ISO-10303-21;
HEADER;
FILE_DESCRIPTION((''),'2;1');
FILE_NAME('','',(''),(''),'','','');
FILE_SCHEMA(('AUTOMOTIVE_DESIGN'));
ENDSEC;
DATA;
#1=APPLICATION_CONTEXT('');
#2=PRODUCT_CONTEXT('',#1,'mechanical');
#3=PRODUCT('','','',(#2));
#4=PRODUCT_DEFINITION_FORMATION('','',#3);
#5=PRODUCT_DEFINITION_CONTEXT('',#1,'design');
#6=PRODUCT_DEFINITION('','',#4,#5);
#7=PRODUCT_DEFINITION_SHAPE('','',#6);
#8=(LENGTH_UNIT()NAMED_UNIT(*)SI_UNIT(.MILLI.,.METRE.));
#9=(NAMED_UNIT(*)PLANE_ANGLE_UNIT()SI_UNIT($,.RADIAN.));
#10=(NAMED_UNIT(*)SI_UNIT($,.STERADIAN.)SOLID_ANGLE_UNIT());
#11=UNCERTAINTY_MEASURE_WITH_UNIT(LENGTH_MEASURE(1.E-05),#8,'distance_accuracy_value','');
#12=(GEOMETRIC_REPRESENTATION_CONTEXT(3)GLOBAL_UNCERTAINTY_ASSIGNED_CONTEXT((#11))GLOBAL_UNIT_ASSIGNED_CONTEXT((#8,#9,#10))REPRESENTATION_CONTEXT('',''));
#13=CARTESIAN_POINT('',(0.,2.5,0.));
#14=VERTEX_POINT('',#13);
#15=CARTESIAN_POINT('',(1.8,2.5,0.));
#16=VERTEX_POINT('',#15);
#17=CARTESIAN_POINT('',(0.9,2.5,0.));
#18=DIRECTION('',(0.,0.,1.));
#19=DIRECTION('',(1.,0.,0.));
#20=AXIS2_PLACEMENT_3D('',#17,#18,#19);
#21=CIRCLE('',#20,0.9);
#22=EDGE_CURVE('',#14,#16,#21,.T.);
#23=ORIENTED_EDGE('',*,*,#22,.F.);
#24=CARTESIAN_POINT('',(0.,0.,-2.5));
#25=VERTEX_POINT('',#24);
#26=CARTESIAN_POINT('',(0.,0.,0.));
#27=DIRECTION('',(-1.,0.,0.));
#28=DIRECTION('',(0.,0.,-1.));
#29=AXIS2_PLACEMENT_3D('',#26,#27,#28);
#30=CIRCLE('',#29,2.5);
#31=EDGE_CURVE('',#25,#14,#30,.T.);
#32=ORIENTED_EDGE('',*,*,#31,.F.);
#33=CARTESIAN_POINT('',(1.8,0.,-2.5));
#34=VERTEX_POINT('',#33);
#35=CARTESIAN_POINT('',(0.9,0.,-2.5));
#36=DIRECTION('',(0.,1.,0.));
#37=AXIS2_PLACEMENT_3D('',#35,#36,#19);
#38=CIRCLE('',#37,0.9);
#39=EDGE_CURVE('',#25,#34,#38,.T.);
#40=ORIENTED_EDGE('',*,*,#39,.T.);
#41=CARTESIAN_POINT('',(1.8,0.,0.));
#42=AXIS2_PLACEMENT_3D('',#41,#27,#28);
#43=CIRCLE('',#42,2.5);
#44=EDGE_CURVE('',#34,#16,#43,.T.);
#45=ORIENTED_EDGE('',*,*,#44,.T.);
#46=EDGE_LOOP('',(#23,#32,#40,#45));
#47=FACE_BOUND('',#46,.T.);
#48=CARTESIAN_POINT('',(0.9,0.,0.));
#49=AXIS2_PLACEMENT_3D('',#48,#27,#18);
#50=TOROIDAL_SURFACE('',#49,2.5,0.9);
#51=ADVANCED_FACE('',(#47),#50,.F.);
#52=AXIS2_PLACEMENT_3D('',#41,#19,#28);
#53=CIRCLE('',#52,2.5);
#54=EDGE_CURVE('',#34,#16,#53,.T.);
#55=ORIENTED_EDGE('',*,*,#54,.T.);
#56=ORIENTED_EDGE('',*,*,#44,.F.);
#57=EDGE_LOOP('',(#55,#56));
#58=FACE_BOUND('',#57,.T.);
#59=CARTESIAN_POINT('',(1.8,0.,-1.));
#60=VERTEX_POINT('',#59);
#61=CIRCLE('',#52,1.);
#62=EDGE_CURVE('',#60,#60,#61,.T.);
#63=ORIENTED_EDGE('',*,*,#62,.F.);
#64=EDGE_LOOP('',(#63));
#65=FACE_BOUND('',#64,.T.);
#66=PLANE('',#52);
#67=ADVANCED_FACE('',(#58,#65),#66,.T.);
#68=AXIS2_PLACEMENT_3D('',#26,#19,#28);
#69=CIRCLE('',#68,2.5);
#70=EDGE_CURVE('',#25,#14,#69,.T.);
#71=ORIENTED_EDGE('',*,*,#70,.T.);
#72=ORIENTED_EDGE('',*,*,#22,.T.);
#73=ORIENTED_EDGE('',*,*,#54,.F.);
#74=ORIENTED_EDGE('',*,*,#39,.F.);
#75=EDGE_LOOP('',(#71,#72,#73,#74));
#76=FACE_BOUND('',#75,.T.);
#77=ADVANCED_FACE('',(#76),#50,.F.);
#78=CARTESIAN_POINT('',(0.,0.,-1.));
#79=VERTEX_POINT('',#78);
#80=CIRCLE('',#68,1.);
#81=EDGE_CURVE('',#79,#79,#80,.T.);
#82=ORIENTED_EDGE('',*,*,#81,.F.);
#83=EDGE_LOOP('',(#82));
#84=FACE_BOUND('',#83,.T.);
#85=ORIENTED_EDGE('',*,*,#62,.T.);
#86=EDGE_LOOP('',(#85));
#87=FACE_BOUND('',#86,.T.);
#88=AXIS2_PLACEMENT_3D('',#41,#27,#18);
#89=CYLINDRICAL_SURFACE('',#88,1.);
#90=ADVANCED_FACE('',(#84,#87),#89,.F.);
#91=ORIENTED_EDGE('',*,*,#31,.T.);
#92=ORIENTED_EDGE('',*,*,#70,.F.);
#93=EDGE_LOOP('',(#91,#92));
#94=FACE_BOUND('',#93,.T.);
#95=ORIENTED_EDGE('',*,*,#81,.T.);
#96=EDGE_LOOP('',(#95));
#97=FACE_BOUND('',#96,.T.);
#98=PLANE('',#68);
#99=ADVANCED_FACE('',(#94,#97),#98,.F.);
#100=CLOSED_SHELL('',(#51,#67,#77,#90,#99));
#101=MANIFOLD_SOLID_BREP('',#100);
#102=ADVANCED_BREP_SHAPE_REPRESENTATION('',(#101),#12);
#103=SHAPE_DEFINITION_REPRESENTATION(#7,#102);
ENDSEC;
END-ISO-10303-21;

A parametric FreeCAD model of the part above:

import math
import FreeCAD as App
import Part
import Sketcher
from FreeCAD import Vector
Q = App.Units.Quantity

doc = App.newDocument("Part")
body = doc.addObject("PartDesign::Body", "Body")

# Sketch on YZ plane
sketch1 = body.newObject("Sketcher::SketchObject", "Sketch")
sketch1.AttachmentSupport = (doc.getObject("YZ_Plane"), [""])
sketch1.MapMode = "FlatFace"
sketch1.addGeometry(Part.Circle(Vector(0, 0, 0), Vector(0, 0, 1), 2.5), False)
sketch1.addGeometry(Part.Circle(Vector(0, 0, 0), Vector(0, 0, 1), 1), False)
sketch1.addConstraint(Sketcher.Constraint("Coincident", 0, 3, -1, 1))
sketch1.addConstraint(Sketcher.Constraint("Coincident", 1, 3, -1, 1))
sketch1.addConstraint(Sketcher.Constraint("Diameter", 0, Q("5 mm")))
sketch1.addConstraint(Sketcher.Constraint("Diameter", 1, Q("2 mm")))
pad1 = body.newObject("PartDesign::Pad", "Pad")
pad1.Profile = sketch1
pad1.Length = 1.8

# Sketch on XY plane
sketch2 = body.newObject("Sketcher::SketchObject", "Sketch001")
sketch2.AttachmentSupport = (doc.getObject("XY_Plane"), [""])
sketch2.MapMode = "FlatFace"
sketch2.addGeometry(Part.LineSegment(Vector(1.8, 2.5, 0), Vector(0, 2.5, 0)), False)
sketch2.addGeometry(Part.ArcOfCircle(Part.Circle(Vector(0.9, 2.5, 0), Vector(0, 0, 1), 0.9), math.radians(180), math.radians(360)), False)
sketch2.addConstraint(Sketcher.Constraint("Coincident", 0, 1, 1, 2))
sketch2.addConstraint(Sketcher.Constraint("Coincident", 1, 1, 0, 2))
sketch2.addConstraint(Sketcher.Constraint("Horizontal", 0))
sketch2.addConstraint(Sketcher.Constraint("PointOnObject", 1, 1, -2))
sketch2.addConstraint(Sketcher.Constraint("Horizontal", 1, 3, 0, 1))
sketch2.addConstraint(Sketcher.Constraint("Radius", 1, Q("0.9 mm")))
sketch2.addConstraint(Sketcher.Constraint("DistanceY", -1, 1, 1, 3, Q("2.5 mm")))

# Sketch on YZ plane
sketch3 = body.newObject("Sketcher::SketchObject", "Sketch002")
sketch3.AttachmentSupport = (doc.getObject("YZ_Plane"), [""])
sketch3.MapMode = "FlatFace"
sketch3.addGeometry(Part.ArcOfCircle(Part.Circle(Vector(0, 0, 0), Vector(0, 0, 1), 2.5), math.radians(-90), math.radians(0)), False)
sketch3.addGeometry(Part.ArcOfCircle(Part.Circle(Vector(0, 0, 0), Vector(0, 0, 1), 2.5), math.radians(0), math.radians(90)), False)
sketch3.addGeometry(Part.ArcOfCircle(Part.Circle(Vector(0, 0, 0), Vector(0, 0, 1), 2.5), math.radians(90), math.radians(180)), False)
sketch3.addGeometry(Part.ArcOfCircle(Part.Circle(Vector(0, 0, 0), Vector(0, 0, 1), 2.5), math.radians(180), math.radians(270)), False)
sketch3.addConstraint(Sketcher.Constraint("Tangent", 0, 2, 1, 1))
sketch3.addConstraint(Sketcher.Constraint("Tangent", 1, 2, 2, 1))
sketch3.addConstraint(Sketcher.Constraint("Tangent", 2, 2, 3, 1))
sketch3.addConstraint(Sketcher.Constraint("Tangent", 3, 2, 0, 1))
sketch3.addConstraint(Sketcher.Constraint("Coincident", 0, 3, -1, 1))
sketch3.addConstraint(Sketcher.Constraint("Equal", 0, 1))
sketch3.addConstraint(Sketcher.Constraint("PointOnObject", 0, 2, -1))
sketch3.addConstraint(Sketcher.Constraint("PointOnObject", 1, 2, -2))
sketch3.addConstraint(Sketcher.Constraint("PointOnObject", 2, 2, -1))
sketch3.addConstraint(Sketcher.Constraint("PointOnObject", 3, 2, -2))
sketch3.addConstraint(Sketcher.Constraint("Radius", 0, Q("2.5 mm")))
doc.recompute()

subtractivepipe = body.newObject("PartDesign::SubtractivePipe", "SubtractivePipe")
subtractivepipe.Profile = sketch2
subtractivepipe.Spine = (sketch3, ["Edge1", "Edge2", "Edge3", "Edge4"])

doc.recompute()
